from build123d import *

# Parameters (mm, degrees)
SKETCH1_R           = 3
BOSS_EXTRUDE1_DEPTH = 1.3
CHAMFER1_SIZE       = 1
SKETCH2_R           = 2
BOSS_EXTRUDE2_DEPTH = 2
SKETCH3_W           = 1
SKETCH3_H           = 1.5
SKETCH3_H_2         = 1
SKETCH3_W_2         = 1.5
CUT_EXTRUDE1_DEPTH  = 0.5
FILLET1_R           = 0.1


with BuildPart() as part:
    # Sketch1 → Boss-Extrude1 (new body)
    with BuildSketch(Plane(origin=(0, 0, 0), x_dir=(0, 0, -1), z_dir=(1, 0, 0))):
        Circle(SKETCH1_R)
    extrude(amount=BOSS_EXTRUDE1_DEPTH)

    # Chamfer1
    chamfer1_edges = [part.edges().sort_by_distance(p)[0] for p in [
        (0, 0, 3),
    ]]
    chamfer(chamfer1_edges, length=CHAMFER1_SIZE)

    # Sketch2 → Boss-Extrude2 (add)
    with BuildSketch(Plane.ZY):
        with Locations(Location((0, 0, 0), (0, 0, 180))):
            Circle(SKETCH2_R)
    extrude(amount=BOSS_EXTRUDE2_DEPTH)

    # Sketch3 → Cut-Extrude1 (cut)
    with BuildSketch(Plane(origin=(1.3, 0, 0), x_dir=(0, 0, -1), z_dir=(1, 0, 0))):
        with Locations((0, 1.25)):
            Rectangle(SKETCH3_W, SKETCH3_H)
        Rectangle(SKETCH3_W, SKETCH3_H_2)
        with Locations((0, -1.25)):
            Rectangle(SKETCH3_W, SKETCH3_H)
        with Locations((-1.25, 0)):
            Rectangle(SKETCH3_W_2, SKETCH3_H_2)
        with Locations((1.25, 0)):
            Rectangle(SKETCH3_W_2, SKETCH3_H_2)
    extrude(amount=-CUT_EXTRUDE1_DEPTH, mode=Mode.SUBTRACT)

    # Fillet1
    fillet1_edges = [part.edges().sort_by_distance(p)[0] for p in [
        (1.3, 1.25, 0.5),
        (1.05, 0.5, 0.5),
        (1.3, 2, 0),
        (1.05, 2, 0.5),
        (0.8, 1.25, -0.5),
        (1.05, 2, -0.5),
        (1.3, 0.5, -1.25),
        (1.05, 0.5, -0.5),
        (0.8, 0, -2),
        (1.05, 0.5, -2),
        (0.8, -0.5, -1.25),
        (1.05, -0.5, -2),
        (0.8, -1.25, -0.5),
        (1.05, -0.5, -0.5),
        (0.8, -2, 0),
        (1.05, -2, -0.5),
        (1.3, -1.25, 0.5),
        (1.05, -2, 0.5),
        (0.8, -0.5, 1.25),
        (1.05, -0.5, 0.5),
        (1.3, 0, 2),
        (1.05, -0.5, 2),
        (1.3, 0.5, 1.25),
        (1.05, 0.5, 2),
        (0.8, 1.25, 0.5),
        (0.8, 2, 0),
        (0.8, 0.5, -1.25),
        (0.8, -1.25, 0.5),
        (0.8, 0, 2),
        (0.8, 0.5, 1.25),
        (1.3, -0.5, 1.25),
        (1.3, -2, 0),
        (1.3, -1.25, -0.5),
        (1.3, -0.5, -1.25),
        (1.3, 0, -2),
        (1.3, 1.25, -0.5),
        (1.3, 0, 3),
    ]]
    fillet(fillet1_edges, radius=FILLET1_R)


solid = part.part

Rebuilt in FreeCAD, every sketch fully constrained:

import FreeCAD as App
import Part
import Sketcher

V = App.Vector


def edges_at(feature, points):
    """Names of the edges that pass closest to the given points."""
    edges = feature.Shape.Edges
    near = lambda p: min(range(len(edges)), key=lambda i: edges[i].distToShape(Part.Vertex(*p))[0])
    return sorted({f"Edge{near(p) + 1}" for p in points})


def add_polygon(sketch, points):
    """Adds a closed chain of lines whose ends are joined by coincident constraints."""
    first, n = sketch.GeometryCount, len(points)
    for a, b in zip(points, points[1:] + points[:1]):
        sketch.addGeometry(Part.LineSegment(App.Vector(*a, 0), App.Vector(*b, 0)), False)
    for i in range(n):
        sketch.addConstraint(Sketcher.Constraint("Coincident", first + i, 2, first + (i + 1) % n, 1))

doc = App.newDocument("Part")
body = doc.addObject("PartDesign::Body", "Body")

sketch1 = doc.addObject("Sketcher::SketchObject", "Sketch")
body.addObject(sketch1)
sketch1.AttachmentSupport = (doc.YZ_Plane, [""])
sketch1.MapMode = "FlatFace"
sketch1.addGeometry(Part.Circle(V(0, 0, 0), V(0, 0, 1), 3), False)
sketch1.addConstraint(Sketcher.Constraint("Coincident", 0, 3, -1, 1))
sketch1.addConstraint(Sketcher.Constraint("Diameter", 0, 6.0))
pad1 = doc.addObject("PartDesign::Pad", "Pad")
body.addObject(pad1)
pad1.Profile = sketch1
pad1.Length = 1.3
doc.recompute()

chamfer = doc.addObject("PartDesign::Chamfer", "Chamfer")
body.addObject(chamfer)
chamfer.Base = (pad1, edges_at(pad1, [(0, 0, 3)]))
chamfer.Size = 1

sketch2 = doc.addObject("Sketcher::SketchObject", "Sketch001")
body.addObject(sketch2)
sketch2.AttachmentSupport = (doc.YZ_Plane, [""])
sketch2.MapMode = "FlatFace"
sketch2.addGeometry(Part.Circle(V(0, 0, 0), V(0, 0, 1), 2), False)
sketch2.addConstraint(Sketcher.Constraint("Coincident", 0, 3, -1, 1))
sketch2.addConstraint(Sketcher.Constraint("Diameter", 0, 4.0))
pad2 = doc.addObject("PartDesign::Pad", "Pad001")
body.addObject(pad2)
pad2.Profile = sketch2
pad2.Length = 2
pad2.Reversed = True

sketch3 = doc.addObject("Sketcher::SketchObject", "Sketch002")
body.addObject(sketch3)
sketch3.AttachmentSupport = (doc.YZ_Plane, [""])
sketch3.MapMode = "FlatFace"
sketch3.AttachmentOffset = App.Placement(V(0, 0, 1.3), App.Rotation())
add_polygon(sketch3, [(2, 0.5), (0.5, 0.5), (0.5, 2), (-0.5, 2), (-0.5, 0.5), (-2, 0.5), (-2, -0.5), (-0.5, -0.5), (-0.5, -2), (0.5, -2), (0.5, -0.5), (2, -0.5)])
sketch3.addConstraint(Sketcher.Constraint("Horizontal", 0))
sketch3.addConstraint(Sketcher.Constraint("Vertical", 1))
sketch3.addConstraint(Sketcher.Constraint("Horizontal", 2))
sketch3.addConstraint(Sketcher.Constraint("Vertical", 3))
sketch3.addConstraint(Sketcher.Constraint("Horizontal", 4))
sketch3.addConstraint(Sketcher.Constraint("Vertical", 5))
sketch3.addConstraint(Sketcher.Constraint("Horizontal", 6))
sketch3.addConstraint(Sketcher.Constraint("Vertical", 7))
sketch3.addConstraint(Sketcher.Constraint("Horizontal", 8))
sketch3.addConstraint(Sketcher.Constraint("Vertical", 9))
sketch3.addConstraint(Sketcher.Constraint("Horizontal", 10))
sketch3.addConstraint(Sketcher.Constraint("Vertical", 11))
sketch3.addConstraint(Sketcher.Constraint("Symmetric", 0, 2, 6, 2, -1, 1))
sketch3.addConstraint(Sketcher.Constraint("Symmetric", 2, 2, 8, 2, -1, 1))
sketch3.addConstraint(Sketcher.Constraint("Symmetric", 4, 2, 10, 2, -1, 1))
sketch3.addConstraint(Sketcher.Constraint("Symmetric", 0, 2, 3, 2, -2))
sketch3.addConstraint(Sketcher.Constraint("Equal", 10, 1))
sketch3.addConstraint(Sketcher.Constraint("Equal", 8, 5))
sketch3.addConstraint(Sketcher.Constraint("DistanceX", 2, 2, 2, 1, 1.0))
sketch3.addConstraint(Sketcher.Constraint("DistanceX", 0, 2, 0, 1, 1.5))
pocket1 = doc.addObject("PartDesign::Pocket", "Pocket")
body.addObject(pocket1)
pocket1.Profile = sketch3
pocket1.Length = 0.5
doc.recompute()

fillet = doc.addObject("PartDesign::Fillet", "Fillet")
body.addObject(fillet)
fillet.Base = (pocket1, edges_at(pocket1, [
    (1.3, 1.25, 0.5),
    (1.05, 0.5, 0.5),
    (1.3, 2, 0),
    (1.05, 2, 0.5),
    (0.8, 1.25, -0.5),
    (1.05, 2, -0.5),
    (1.3, 0.5, -1.25),
    (1.05, 0.5, -0.5),
    (0.8, 0, -2),
    (1.05, 0.5, -2),
    (0.8, -0.5, -1.25),
    (1.05, -0.5, -2),
    (0.8, -1.25, -0.5),
    (1.05, -0.5, -0.5),
    (0.8, -2, 0),
    (1.05, -2, -0.5),
    (1.3, -1.25, 0.5),
    (1.05, -2, 0.5),
    (0.8, -0.5, 1.25),
    (1.05, -0.5, 0.5),
    (1.3, 0, 2),
    (1.05, -0.5, 2),
    (1.3, 0.5, 1.25),
    (1.05, 0.5, 2),
    (0.8, 1.25, 0.5),
    (0.8, 2, 0),
    (0.8, 0.5, -1.25),
    (0.8, -1.25, 0.5),
    (0.8, 0, 2),
    (0.8, 0.5, 1.25),
    (1.3, -0.5, 1.25),
    (1.3, -2, 0),
    (1.3, -1.25, -0.5),
    (1.3, -0.5, -1.25),
    (1.3, 0, -2),
    (1.3, 1.25, -0.5),
    (1.3, 0, 3),
]))
fillet.Radius = 0.1

doc.recompute()
